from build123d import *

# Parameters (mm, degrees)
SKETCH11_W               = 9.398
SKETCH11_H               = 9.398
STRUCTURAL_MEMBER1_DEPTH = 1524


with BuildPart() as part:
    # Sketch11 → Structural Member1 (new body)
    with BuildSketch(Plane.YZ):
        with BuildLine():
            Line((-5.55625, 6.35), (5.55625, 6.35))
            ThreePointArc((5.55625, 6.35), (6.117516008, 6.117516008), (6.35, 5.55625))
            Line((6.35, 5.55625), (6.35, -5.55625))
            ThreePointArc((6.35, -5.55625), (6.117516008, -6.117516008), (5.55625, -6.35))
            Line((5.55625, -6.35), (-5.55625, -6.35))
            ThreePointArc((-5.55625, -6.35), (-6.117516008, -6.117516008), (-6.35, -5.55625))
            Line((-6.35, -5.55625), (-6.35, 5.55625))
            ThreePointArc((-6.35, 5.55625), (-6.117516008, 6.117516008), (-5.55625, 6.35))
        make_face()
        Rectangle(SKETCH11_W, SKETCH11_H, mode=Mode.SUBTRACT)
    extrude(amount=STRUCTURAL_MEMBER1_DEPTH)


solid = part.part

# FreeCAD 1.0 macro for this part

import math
import FreeCAD as App
import Part
import Sketcher

V = App.Vector
Q = App.Units.Quantity

doc = App.newDocument("Part")
body = doc.addObject("PartDesign::Body", "Body")

sketch1 = body.newObject("Sketcher::SketchObject", "Sketch")
sketch1.AttachmentSupport = (doc.getObject("YZ_Plane"), [""])
sketch1.MapMode = "FlatFace"
sketch1.addGeometry([
    Part.LineSegment(V(5.6, 6.3, 0), V(-5.6, 6.3, 0)),
    Part.ArcOfCircle(Part.Circle(V(-5.6, 5.6, 0), V(0, 0, 1), 0.8), math.radians(90), math.radians(180)),
    Part.LineSegment(V(-6.3, 5.6, 0), V(-6.3, -5.6, 0)),
    Part.ArcOfCircle(Part.Circle(V(-5.6, -5.6, 0), V(0, 0, 1), 0.8), math.radians(180), math.radians(270)),
    Part.LineSegment(V(-5.6, -6.3, 0), V(5.6, -6.3, 0)),
    Part.ArcOfCircle(Part.Circle(V(5.6, -5.6, 0), V(0, 0, 1), 0.8), math.radians(-90), math.radians(0)),
    Part.LineSegment(V(6.3, -5.6, 0), V(6.3, 5.6, 0)),
    Part.ArcOfCircle(Part.Circle(V(5.6, 5.6, 0), V(0, 0, 1), 0.8), math.radians(0), math.radians(90)),
    Part.LineSegment(V(-4.7, -4.7, 0), V(-4.7, 4.7, 0)),
    Part.LineSegment(V(-4.7, 4.7, 0), V(4.7, 4.7, 0)),
    Part.LineSegment(V(4.7, 4.7, 0), V(4.7, -4.7, 0)),
    Part.LineSegment(V(4.7, -4.7, 0), V(-4.7, -4.7, 0)),
], False)
sketch1.addConstraint([
    Sketcher.Constraint("Tangent", 0, 2, 1, 1),
    Sketcher.Constraint("Tangent", 1, 2, 2, 1),
    Sketcher.Constraint("Tangent", 2, 2, 3, 1),
    Sketcher.Constraint("Tangent", 3, 2, 4, 1),
    Sketcher.Constraint("Tangent", 4, 2, 5, 1),
    Sketcher.Constraint("Tangent", 5, 2, 6, 1),
    Sketcher.Constraint("Tangent", 6, 2, 7, 1),
    Sketcher.Constraint("Tangent", 7, 2, 0, 1),
    Sketcher.Constraint("Coincident", 8, 2, 9, 1),
    Sketcher.Constraint("Coincident", 9, 2, 10, 1),
    Sketcher.Constraint("Coincident", 10, 2, 11, 1),
    Sketcher.Constraint("Coincident", 11, 2, 8, 1),
    Sketcher.Constraint("Horizontal", 0),
    Sketcher.Constraint("Vertical", 2),
    Sketcher.Constraint("Horizontal", 4),
    Sketcher.Constraint("Vertical", 6),
    Sketcher.Constraint("Vertical", 8),
    Sketcher.Constraint("Horizontal", 9),
    Sketcher.Constraint("Vertical", 10),
    Sketcher.Constraint("Horizontal", 11),
    Sketcher.Constraint("Equal", 1, 3),
    Sketcher.Constraint("Equal", 3, 5),
    Sketcher.Constraint("Equal", 5, 7),
    Sketcher.Constraint("Symmetric", 1, 3, 5, 3, -1, 1),
    Sketcher.Constraint("Symmetric", 8, 2, 10, 2, -1, 1),
    Sketcher.Constraint("Equal", 4, 2),
    Sketcher.Constraint("Equal", 11, 8),
    Sketcher.Constraint("Radius", 1, Q("0.03125 in")),
    Sketcher.Constraint("DistanceX", 9, 1, 9, 2, Q("0.37 in")),
    Sketcher.Constraint("DistanceX", 0, 2, 0, 1, Q("0.4375 in")),
])
pad1 = body.newObject("PartDesign::Pad", "Pad")
pad1.Profile = sketch1
pad1.Length = Q("60 in")

doc.recompute()
